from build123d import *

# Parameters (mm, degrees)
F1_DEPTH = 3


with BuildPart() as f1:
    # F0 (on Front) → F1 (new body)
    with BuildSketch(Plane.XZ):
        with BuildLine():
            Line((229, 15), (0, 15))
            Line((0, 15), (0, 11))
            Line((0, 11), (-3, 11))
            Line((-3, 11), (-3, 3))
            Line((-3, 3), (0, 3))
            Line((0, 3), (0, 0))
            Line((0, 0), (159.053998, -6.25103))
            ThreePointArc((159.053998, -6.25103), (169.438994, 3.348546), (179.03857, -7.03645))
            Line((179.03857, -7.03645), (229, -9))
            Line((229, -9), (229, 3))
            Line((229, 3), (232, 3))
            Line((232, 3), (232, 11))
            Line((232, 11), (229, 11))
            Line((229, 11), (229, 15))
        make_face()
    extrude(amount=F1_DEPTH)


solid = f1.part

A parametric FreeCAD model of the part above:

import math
import FreeCAD as App
import Part
import Sketcher

doc = App.newDocument("Part")
params = doc.addObject("Spreadsheet::Sheet", "Params")
for row, (alias, value) in enumerate([
    ("sketch1_radius", "10 mm"),
    ("sketch1_width", "229 mm"),
    ("sketch1_width2", "3 mm"),
    ("sketch1_height", "4 mm"),
    ("sketch1_height2", "8 mm"),
    ("pad1_length", "3 mm"),
], start=1):
    params.set(f"A{row}", alias)
    params.set(f"B{row}", "=" + value)
    params.setAlias(f"B{row}", alias)

body = doc.addObject("PartDesign::Body", "Body")

# Sketch on XZ plane
sketch1 = body.newObject("Sketcher::SketchObject", "Sketch")
sketch1.AttachmentSupport = (doc.getObject("XZ_Plane"), [""])
sketch1.MapMode = "FlatFace"
sketch1.addGeometry([
    Part.LineSegment(App.Vector(229, 15, 0), App.Vector(0, 15, 0)),  # 0
    Part.LineSegment(App.Vector(0, 15, 0), App.Vector(0, 11, 0)),  # 1
    Part.LineSegment(App.Vector(0, 11, 0), App.Vector(-3, 11, 0)),  # 2
    Part.LineSegment(App.Vector(-3, 11, 0), App.Vector(-3, 3, 0)),  # 3
    Part.LineSegment(App.Vector(-3, 3, 0), App.Vector(0, 3, 0)),  # 4
    Part.LineSegment(App.Vector(0, 3, 0), App.Vector(0, 0, 0)),  # 5
    Part.LineSegment(App.Vector(0, 0, 0), App.Vector(159.053998, -6.25103, 0)),  # 6
    Part.ArcOfCircle(Part.Circle(App.Vector(169.046284, -6.64374, 0), App.Vector(0, 0, 1), 10), math.radians(-2.250641), math.radians(177.749359)),  # 7
    Part.LineSegment(App.Vector(179.03857, -7.03645, 0), App.Vector(229, -9, 0)),  # 8
    Part.LineSegment(App.Vector(229, -9, 0), App.Vector(229, 3, 0)),  # 9
    Part.LineSegment(App.Vector(229, 3, 0), App.Vector(232, 3, 0)),  # 10
    Part.LineSegment(App.Vector(232, 3, 0), App.Vector(232, 11, 0)),  # 11
    Part.LineSegment(App.Vector(232, 11, 0), App.Vector(229, 11, 0)),  # 12
    Part.LineSegment(App.Vector(229, 11, 0), App.Vector(229, 15, 0)),  # 13
], False)
sketch1.addConstraint([
    Sketcher.Constraint("Coincident", 0, 2, 1, 1),
    Sketcher.Constraint("Coincident", 1, 2, 2, 1),
    Sketcher.Constraint("Coincident", 2, 2, 3, 1),
    Sketcher.Constraint("Coincident", 3, 2, 4, 1),
    Sketcher.Constraint("Coincident", 4, 2, 5, 1),
    Sketcher.Constraint("Coincident", 5, 2, 6, 1),
    Sketcher.Constraint("Coincident", 6, 2, 7, 2),
    Sketcher.Constraint("Coincident", 7, 1, 8, 1),
    Sketcher.Constraint("Coincident", 8, 2, 9, 1),
    Sketcher.Constraint("Coincident", 9, 2, 10, 1),
    Sketcher.Constraint("Coincident", 10, 2, 11, 1),
    Sketcher.Constraint("Coincident", 11, 2, 12, 1),
    Sketcher.Constraint("Coincident", 12, 2, 13, 1),
    Sketcher.Constraint("Coincident", 13, 2, 0, 1),
    Sketcher.Constraint("Horizontal", 0),
    Sketcher.Constraint("Vertical", 1),
    Sketcher.Constraint("Horizontal", 2),
    Sketcher.Constraint("Vertical", 3),
    Sketcher.Constraint("Horizontal", 4),
    Sketcher.Constraint("Vertical", 5),
    Sketcher.Constraint("Vertical", 9),
    Sketcher.Constraint("Horizontal", 10),
    Sketcher.Constraint("Vertical", 11),
    Sketcher.Constraint("Horizontal", 12),
    Sketcher.Constraint("Vertical", 13),
    Sketcher.Constraint("Coincident", 5, 2, -1, 1),
    Sketcher.Constraint("PointOnObject", 0, 2, -2),
    Sketcher.Constraint("Parallel", 6, 8),
    Sketcher.Constraint("Horizontal", 4, 2, 9, 2),
    Sketcher.Constraint("Horizontal", 2, 2, 11, 2),
    Sketcher.Constraint("Vertical", 9, 2, 12, 2),
    Sketcher.Constraint("Equal", 4, 10),
    Sketcher.Constraint("Equal", 12, 5),
    Sketcher.Constraint("Radius", 7, 10.0),
    Sketcher.Constraint("DistanceX", 0, 2, 0, 1, 229.0),
    Sketcher.Constraint("DistanceX", 2, 2, 2, 1, 3.0),
    Sketcher.Constraint("DistanceY", 1, 2, 1, 1, 4.0),
    Sketcher.Constraint("DistanceY", 3, 2, 3, 1, 8.0),
    Sketcher.Constraint("DistanceY", 9, 1, 9, 2, 12.0),
    Sketcher.Constraint("Distance", 8, 50.0),
    Sketcher.Constraint("DistanceX", -1, 1, 6, 2, 159.053998),
    Sketcher.Constraint("DistanceY", 7, 3, -1, 1, 6.64374),
])
sketch1.setExpression("Constraints[33]", "Params.sketch1_radius")
sketch1.setExpression("Constraints[34]", "Params.sketch1_width")
sketch1.setExpression("Constraints[35]", "Params.sketch1_width2")
sketch1.setExpression("Constraints[36]", "Params.sketch1_height")
sketch1.setExpression("Constraints[37]", "Params.sketch1_height2")
pad1 = body.newObject("PartDesign::Pad", "Pad")
pad1.Profile = sketch1
pad1.setExpression("Length", "Params.pad1_length")

doc.recompute()
